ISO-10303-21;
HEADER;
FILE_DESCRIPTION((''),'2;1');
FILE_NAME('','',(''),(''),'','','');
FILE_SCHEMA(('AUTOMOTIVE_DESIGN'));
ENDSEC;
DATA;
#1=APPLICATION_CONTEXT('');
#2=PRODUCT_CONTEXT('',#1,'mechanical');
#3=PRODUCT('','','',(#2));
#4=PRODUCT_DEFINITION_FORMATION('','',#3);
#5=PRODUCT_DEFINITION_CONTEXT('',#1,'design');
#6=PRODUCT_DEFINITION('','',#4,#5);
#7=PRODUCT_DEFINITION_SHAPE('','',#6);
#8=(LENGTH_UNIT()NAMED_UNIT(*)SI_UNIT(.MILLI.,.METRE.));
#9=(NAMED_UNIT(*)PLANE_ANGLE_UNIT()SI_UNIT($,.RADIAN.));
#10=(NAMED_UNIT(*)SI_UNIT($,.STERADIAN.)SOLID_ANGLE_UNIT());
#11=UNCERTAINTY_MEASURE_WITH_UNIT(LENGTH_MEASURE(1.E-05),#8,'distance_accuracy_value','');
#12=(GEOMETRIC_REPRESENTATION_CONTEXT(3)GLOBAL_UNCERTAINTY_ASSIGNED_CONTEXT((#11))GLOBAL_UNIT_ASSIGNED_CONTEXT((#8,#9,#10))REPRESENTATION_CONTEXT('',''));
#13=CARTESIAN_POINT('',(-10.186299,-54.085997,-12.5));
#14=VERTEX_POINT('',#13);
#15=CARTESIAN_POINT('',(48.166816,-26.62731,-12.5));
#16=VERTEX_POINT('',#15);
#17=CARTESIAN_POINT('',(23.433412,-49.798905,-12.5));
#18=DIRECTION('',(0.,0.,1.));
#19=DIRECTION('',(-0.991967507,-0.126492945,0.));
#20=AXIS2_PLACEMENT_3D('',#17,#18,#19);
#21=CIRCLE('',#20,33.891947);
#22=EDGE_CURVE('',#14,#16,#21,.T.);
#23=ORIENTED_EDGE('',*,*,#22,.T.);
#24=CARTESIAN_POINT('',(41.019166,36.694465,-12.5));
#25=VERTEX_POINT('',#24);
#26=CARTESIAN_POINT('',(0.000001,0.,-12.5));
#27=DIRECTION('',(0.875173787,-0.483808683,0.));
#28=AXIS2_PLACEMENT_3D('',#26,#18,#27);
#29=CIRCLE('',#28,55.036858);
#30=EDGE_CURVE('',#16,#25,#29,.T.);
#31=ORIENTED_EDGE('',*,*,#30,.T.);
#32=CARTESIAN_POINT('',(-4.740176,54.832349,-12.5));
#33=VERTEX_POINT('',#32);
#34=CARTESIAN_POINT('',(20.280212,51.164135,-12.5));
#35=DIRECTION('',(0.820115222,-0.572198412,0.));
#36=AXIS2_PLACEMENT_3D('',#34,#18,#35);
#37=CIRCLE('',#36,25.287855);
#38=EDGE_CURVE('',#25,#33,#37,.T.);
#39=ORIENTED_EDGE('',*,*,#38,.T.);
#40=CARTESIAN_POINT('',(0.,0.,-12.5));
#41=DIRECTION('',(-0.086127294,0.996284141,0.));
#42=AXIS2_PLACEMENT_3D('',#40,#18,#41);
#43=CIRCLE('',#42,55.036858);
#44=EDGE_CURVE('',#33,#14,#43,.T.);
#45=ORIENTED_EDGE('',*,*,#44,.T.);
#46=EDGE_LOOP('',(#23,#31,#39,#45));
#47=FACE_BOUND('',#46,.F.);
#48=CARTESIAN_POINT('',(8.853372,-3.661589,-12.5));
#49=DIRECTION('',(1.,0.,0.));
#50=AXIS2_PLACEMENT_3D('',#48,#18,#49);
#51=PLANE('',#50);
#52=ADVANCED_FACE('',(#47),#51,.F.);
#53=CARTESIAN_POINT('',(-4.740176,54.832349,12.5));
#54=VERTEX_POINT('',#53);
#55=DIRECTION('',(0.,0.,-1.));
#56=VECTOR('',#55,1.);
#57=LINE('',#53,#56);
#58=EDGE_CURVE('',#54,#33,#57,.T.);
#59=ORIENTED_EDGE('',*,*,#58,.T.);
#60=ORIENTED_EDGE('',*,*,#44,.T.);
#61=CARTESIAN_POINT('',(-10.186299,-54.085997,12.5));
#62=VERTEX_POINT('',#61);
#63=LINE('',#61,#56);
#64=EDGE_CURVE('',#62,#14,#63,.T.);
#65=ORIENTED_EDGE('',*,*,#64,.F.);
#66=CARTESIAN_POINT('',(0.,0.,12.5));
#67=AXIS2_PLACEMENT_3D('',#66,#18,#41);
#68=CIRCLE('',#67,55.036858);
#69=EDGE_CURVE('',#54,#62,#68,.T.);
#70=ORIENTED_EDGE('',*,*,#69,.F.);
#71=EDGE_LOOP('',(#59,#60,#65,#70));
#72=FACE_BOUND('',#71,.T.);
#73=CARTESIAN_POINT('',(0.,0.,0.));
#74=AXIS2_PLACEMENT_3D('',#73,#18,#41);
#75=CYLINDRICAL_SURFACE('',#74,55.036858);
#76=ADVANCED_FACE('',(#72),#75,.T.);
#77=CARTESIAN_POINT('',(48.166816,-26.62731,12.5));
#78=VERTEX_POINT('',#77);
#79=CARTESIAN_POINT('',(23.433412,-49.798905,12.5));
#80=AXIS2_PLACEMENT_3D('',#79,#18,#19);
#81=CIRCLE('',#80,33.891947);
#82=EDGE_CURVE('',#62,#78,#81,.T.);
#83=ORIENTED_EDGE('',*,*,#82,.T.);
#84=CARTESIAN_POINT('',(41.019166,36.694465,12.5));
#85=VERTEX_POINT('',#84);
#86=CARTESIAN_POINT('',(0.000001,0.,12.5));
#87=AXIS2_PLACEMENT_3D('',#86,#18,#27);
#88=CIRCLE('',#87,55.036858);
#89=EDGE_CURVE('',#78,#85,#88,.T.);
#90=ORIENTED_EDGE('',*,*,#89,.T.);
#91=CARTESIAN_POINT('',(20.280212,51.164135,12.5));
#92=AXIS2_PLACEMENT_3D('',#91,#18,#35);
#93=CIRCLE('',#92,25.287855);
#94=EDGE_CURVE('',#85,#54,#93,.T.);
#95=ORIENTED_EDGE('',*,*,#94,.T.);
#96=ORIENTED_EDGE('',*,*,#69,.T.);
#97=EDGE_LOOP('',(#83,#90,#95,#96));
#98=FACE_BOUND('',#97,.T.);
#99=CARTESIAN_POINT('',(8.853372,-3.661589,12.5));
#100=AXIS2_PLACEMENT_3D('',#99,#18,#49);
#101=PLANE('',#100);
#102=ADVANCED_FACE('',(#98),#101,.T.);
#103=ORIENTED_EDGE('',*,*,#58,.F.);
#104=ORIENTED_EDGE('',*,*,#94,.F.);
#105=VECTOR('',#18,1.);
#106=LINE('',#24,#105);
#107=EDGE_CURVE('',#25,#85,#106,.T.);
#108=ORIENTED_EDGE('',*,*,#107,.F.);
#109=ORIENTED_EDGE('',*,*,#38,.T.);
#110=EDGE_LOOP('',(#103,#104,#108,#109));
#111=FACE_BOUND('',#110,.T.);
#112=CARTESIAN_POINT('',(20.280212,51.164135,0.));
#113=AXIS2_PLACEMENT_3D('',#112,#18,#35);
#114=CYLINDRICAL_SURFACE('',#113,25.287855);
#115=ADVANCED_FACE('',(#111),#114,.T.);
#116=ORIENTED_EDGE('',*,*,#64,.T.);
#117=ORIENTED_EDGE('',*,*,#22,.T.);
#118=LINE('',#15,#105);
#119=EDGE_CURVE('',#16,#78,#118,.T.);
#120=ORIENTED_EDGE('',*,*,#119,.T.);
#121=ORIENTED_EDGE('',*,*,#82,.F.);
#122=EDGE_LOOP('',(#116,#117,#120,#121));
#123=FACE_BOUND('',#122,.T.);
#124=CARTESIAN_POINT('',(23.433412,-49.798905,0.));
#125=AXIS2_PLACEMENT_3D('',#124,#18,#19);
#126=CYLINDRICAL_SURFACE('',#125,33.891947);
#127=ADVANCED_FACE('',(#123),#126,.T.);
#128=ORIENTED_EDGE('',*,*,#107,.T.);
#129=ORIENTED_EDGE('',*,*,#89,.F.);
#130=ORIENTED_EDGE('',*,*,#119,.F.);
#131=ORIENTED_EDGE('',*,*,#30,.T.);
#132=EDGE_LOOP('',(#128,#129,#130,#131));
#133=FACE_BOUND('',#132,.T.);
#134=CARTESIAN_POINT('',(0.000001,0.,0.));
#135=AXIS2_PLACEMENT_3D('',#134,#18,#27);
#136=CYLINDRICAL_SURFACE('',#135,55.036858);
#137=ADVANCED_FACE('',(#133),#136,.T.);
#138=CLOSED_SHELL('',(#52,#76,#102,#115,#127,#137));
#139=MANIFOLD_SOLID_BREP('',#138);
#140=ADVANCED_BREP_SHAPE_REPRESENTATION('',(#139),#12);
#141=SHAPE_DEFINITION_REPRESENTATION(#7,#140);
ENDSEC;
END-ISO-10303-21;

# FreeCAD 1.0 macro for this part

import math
import FreeCAD as App
import Part
import Sketcher
Q = App.Units.Quantity

doc = App.newDocument("Part")
body = doc.addObject("PartDesign::Body", "Body")

sketch1 = body.newObject("Sketcher::SketchObject", "Sketch")
sketch1.AttachmentSupport = (doc.getObject("XY_Plane"), [""])
sketch1.MapMode = "FlatFace"
sketch1.addGeometry(Part.ArcOfCircle(Part.Circle(App.Vector(23.433412, -49.798905, 0), App.Vector(0, 0, 1), 33.891947), math.radians(-172.73302), math.radians(43.132691)), False)
sketch1.addGeometry(Part.ArcOfCircle(Part.Circle(App.Vector(0.000001, 0, 0), App.Vector(0, 0, 1), 55.036858), math.radians(-28.93445), math.radians(41.814822)), False)
sketch1.addGeometry(Part.ArcOfCircle(Part.Circle(App.Vector(20.280212, 51.164135, 0), App.Vector(0, 0, 1), 25.287855), math.radians(-34.90367), math.radians(171.659343)), False)
sketch1.addGeometry(Part.ArcOfCircle(Part.Circle(App.Vector(0, 0, 0), App.Vector(0, 0, 1), 55.036858), math.radians(94.940852), math.radians(259.334122)), False)
sketch1.addConstraint(Sketcher.Constraint("Coincident", 0, 2, 1, 1))
sketch1.addConstraint(Sketcher.Constraint("Coincident", 1, 2, 2, 1))
sketch1.addConstraint(Sketcher.Constraint("Coincident", 2, 2, 3, 1))
sketch1.addConstraint(Sketcher.Constraint("Coincident", 3, 2, 0, 1))
sketch1.addConstraint(Sketcher.Constraint("Coincident", 1, 3, -1, 1))
sketch1.addConstraint(Sketcher.Constraint("Coincident", 3, 3, -1, 1))
sketch1.addConstraint(Sketcher.Constraint("Equal", 1, 3))
sketch1.addConstraint(Sketcher.Constraint("Radius", 3, Q("55.036858 mm")))
sketch1.addConstraint(Sketcher.Constraint("Radius", 0, Q("33.891947 mm")))
sketch1.addConstraint(Sketcher.Constraint("Radius", 2, Q("25.287855 mm")))
sketch1.addConstraint(Sketcher.Constraint("DistanceX", 3, 2, -1, 1, Q("10.186299 mm")))
sketch1.addConstraint(Sketcher.Constraint("DistanceX", 2, 3, 0, 3, Q("3.1532 mm")))
sketch1.addConstraint(Sketcher.Constraint("DistanceX", -1, 1, 0, 3, Q("23.433412 mm")))
sketch1.addConstraint(Sketcher.Constraint("DistanceY", 0, 3, 2, 3, Q("100.96304 mm")))
pad1 = body.newObject("PartDesign::Pad", "Pad")
pad1.Profile = sketch1
pad1.Length = 25
pad1.Midplane = True

doc.recompute()
